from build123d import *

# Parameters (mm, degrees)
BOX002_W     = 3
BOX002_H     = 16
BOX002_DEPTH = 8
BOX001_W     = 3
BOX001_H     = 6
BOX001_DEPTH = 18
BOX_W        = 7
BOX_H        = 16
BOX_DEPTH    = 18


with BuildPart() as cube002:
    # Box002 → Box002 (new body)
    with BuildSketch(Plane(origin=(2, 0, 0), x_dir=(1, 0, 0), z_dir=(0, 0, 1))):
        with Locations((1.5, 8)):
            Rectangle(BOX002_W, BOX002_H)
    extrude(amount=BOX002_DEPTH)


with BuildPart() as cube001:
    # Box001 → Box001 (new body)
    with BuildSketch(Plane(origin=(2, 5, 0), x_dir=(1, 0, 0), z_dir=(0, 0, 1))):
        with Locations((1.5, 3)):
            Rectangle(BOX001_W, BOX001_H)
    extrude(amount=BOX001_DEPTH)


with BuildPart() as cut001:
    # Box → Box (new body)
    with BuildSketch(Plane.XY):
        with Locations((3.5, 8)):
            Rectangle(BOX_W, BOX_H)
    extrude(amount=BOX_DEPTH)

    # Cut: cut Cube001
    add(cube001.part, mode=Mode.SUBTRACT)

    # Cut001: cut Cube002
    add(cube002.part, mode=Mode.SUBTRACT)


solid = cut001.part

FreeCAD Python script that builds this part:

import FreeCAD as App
import Part
import Sketcher
from FreeCAD import Vector
Q = App.Units.Quantity

doc = App.newDocument("Part")
params = doc.addObject("Spreadsheet::Sheet", "Params")
for row, (alias, value) in enumerate([
    ("sketch1_width", "3 mm"),
    ("sketch1_height", "16 mm"),
    ("pad1_length", "8 mm"),
    ("sketch2_width", "3 mm"),
    ("sketch2_height", "6 mm"),
    ("pad2_length", "18 mm"),
    ("sketch3_width", "7 mm"),
    ("sketch3_height", "16 mm"),
    ("pad3_length", "18 mm"),
], start=1):
    params.set(f"A{row}", alias)
    params.set(f"B{row}", "=" + value)
    params.setAlias(f"B{row}", alias)

body = doc.addObject("PartDesign::Body", "Body")

sketch1 = body.newObject("Sketcher::SketchObject", "Sketch")
sketch1.AttachmentSupport = (doc.getObject("XY_Plane"), [""])
sketch1.MapMode = "FlatFace"
sketch1.addGeometry(Part.LineSegment(Vector(2, 16, 0), Vector(2, 0, 0)), False)
sketch1.addGeometry(Part.LineSegment(Vector(2, 0, 0), Vector(5, 0, 0)), False)
sketch1.addGeometry(Part.LineSegment(Vector(5, 0, 0), Vector(5, 16, 0)), False)
sketch1.addGeometry(Part.LineSegment(Vector(5, 16, 0), Vector(2, 16, 0)), False)
sketch1.addConstraint(Sketcher.Constraint("Coincident", 0, 2, 1, 1))
sketch1.addConstraint(Sketcher.Constraint("Coincident", 1, 2, 2, 1))
sketch1.addConstraint(Sketcher.Constraint("Coincident", 2, 2, 3, 1))
sketch1.addConstraint(Sketcher.Constraint("Coincident", 3, 2, 0, 1))
sketch1.addConstraint(Sketcher.Constraint("Vertical", 0))
sketch1.addConstraint(Sketcher.Constraint("Horizontal", 1))
sketch1.addConstraint(Sketcher.Constraint("Vertical", 2))
sketch1.addConstraint(Sketcher.Constraint("Horizontal", 3))
sketch1.addConstraint(Sketcher.Constraint("PointOnObject", 0, 2, -1))
sketch1.addConstraint(Sketcher.Constraint("DistanceX", 1, 1, 1, 2, Q("3 mm")))
sketch1.addConstraint(Sketcher.Constraint("DistanceY", 0, 2, 0, 1, Q("16 mm")))
sketch1.addConstraint(Sketcher.Constraint("DistanceX", -1, 1, 0, 2, Q("2 mm")))
sketch1.setExpression("Constraints[9]", "Params.sketch1_width")
sketch1.setExpression("Constraints[10]", "Params.sketch1_height")
pad1 = body.newObject("PartDesign::Pad", "Pad")
pad1.Profile = sketch1
pad1.setExpression("Length", "Params.pad1_length")
body2 = doc.addObject("PartDesign::Body", "Body001")

sketch2 = body2.newObject("Sketcher::SketchObject", "Sketch001")
sketch2.AttachmentSupport = (doc.getObject("XY_Plane001"), [""])
sketch2.MapMode = "FlatFace"
sketch2.addGeometry(Part.LineSegment(Vector(2, 11, 0), Vector(2, 5, 0)), False)
sketch2.addGeometry(Part.LineSegment(Vector(2, 5, 0), Vector(5, 5, 0)), False)
sketch2.addGeometry(Part.LineSegment(Vector(5, 5, 0), Vector(5, 11, 0)), False)
sketch2.addGeometry(Part.LineSegment(Vector(5, 11, 0), Vector(2, 11, 0)), False)
sketch2.addConstraint(Sketcher.Constraint("Coincident", 0, 2, 1, 1))
sketch2.addConstraint(Sketcher.Constraint("Coincident", 1, 2, 2, 1))
sketch2.addConstraint(Sketcher.Constraint("Coincident", 2, 2, 3, 1))
sketch2.addConstraint(Sketcher.Constraint("Coincident", 3, 2, 0, 1))
sketch2.addConstraint(Sketcher.Constraint("Vertical", 0))
sketch2.addConstraint(Sketcher.Constraint("Horizontal", 1))
sketch2.addConstraint(Sketcher.Constraint("Vertical", 2))
sketch2.addConstraint(Sketcher.Constraint("Horizontal", 3))
sketch2.addConstraint(Sketcher.Constraint("DistanceX", 1, 1, 1, 2, Q("3 mm")))
sketch2.addConstraint(Sketcher.Constraint("DistanceY", 0, 2, 0, 1, Q("6 mm")))
sketch2.addConstraint(Sketcher.Constraint("DistanceX", -1, 1, 0, 2, Q("2 mm")))
sketch2.addConstraint(Sketcher.Constraint("DistanceY", -1, 1, 0, 2, Q("5 mm")))
sketch2.setExpression("Constraints[8]", "Params.sketch2_width")
sketch2.setExpression("Constraints[9]", "Params.sketch2_height")
pad2 = body2.newObject("PartDesign::Pad", "Pad001")
pad2.Profile = sketch2
pad2.setExpression("Length", "Params.pad2_length")
body3 = doc.addObject("PartDesign::Body", "Body002")

sketch3 = body3.newObject("Sketcher::SketchObject", "Sketch002")
sketch3.AttachmentSupport = (doc.getObject("XY_Plane002"), [""])
sketch3.MapMode = "FlatFace"
sketch3.addGeometry(Part.LineSegment(Vector(0, 16, 0), Vector(0, 0, 0)), False)
sketch3.addGeometry(Part.LineSegment(Vector(0, 0, 0), Vector(7, 0, 0)), False)
sketch3.addGeometry(Part.LineSegment(Vector(7, 0, 0), Vector(7, 16, 0)), False)
sketch3.addGeometry(Part.LineSegment(Vector(7, 16, 0), Vector(0, 16, 0)), False)
sketch3.addConstraint(Sketcher.Constraint("Coincident", 0, 2, 1, 1))
sketch3.addConstraint(Sketcher.Constraint("Coincident", 1, 2, 2, 1))
sketch3.addConstraint(Sketcher.Constraint("Coincident", 2, 2, 3, 1))
sketch3.addConstraint(Sketcher.Constraint("Coincident", 3, 2, 0, 1))
sketch3.addConstraint(Sketcher.Constraint("Vertical", 0))
sketch3.addConstraint(Sketcher.Constraint("Horizontal", 1))
sketch3.addConstraint(Sketcher.Constraint("Vertical", 2))
sketch3.addConstraint(Sketcher.Constraint("Horizontal", 3))
sketch3.addConstraint(Sketcher.Constraint("Coincident", 0, 2, -1, 1))
sketch3.addConstraint(Sketcher.Constraint("DistanceX", 1, 1, 1, 2, Q("7 mm")))
sketch3.addConstraint(Sketcher.Constraint("DistanceY", 0, 2, 0, 1, Q("16 mm")))
sketch3.setExpression("Constraints[9]", "Params.sketch3_width")
sketch3.setExpression("Constraints[10]", "Params.sketch3_height")
pad3 = body3.newObject("PartDesign::Pad", "Pad002")
pad3.Profile = sketch3
pad3.setExpression("Length", "Params.pad3_length")
doc.recompute()

boolean = body3.newObject("PartDesign::Boolean", "Boolean")
boolean.Type = "Cut"
boolean.addObjects([body2])
doc.recompute()

boolean2 = body3.newObject("PartDesign::Boolean", "Boolean001")
boolean2.Type = "Cut"
boolean2.addObjects([body])

doc.recompute()
